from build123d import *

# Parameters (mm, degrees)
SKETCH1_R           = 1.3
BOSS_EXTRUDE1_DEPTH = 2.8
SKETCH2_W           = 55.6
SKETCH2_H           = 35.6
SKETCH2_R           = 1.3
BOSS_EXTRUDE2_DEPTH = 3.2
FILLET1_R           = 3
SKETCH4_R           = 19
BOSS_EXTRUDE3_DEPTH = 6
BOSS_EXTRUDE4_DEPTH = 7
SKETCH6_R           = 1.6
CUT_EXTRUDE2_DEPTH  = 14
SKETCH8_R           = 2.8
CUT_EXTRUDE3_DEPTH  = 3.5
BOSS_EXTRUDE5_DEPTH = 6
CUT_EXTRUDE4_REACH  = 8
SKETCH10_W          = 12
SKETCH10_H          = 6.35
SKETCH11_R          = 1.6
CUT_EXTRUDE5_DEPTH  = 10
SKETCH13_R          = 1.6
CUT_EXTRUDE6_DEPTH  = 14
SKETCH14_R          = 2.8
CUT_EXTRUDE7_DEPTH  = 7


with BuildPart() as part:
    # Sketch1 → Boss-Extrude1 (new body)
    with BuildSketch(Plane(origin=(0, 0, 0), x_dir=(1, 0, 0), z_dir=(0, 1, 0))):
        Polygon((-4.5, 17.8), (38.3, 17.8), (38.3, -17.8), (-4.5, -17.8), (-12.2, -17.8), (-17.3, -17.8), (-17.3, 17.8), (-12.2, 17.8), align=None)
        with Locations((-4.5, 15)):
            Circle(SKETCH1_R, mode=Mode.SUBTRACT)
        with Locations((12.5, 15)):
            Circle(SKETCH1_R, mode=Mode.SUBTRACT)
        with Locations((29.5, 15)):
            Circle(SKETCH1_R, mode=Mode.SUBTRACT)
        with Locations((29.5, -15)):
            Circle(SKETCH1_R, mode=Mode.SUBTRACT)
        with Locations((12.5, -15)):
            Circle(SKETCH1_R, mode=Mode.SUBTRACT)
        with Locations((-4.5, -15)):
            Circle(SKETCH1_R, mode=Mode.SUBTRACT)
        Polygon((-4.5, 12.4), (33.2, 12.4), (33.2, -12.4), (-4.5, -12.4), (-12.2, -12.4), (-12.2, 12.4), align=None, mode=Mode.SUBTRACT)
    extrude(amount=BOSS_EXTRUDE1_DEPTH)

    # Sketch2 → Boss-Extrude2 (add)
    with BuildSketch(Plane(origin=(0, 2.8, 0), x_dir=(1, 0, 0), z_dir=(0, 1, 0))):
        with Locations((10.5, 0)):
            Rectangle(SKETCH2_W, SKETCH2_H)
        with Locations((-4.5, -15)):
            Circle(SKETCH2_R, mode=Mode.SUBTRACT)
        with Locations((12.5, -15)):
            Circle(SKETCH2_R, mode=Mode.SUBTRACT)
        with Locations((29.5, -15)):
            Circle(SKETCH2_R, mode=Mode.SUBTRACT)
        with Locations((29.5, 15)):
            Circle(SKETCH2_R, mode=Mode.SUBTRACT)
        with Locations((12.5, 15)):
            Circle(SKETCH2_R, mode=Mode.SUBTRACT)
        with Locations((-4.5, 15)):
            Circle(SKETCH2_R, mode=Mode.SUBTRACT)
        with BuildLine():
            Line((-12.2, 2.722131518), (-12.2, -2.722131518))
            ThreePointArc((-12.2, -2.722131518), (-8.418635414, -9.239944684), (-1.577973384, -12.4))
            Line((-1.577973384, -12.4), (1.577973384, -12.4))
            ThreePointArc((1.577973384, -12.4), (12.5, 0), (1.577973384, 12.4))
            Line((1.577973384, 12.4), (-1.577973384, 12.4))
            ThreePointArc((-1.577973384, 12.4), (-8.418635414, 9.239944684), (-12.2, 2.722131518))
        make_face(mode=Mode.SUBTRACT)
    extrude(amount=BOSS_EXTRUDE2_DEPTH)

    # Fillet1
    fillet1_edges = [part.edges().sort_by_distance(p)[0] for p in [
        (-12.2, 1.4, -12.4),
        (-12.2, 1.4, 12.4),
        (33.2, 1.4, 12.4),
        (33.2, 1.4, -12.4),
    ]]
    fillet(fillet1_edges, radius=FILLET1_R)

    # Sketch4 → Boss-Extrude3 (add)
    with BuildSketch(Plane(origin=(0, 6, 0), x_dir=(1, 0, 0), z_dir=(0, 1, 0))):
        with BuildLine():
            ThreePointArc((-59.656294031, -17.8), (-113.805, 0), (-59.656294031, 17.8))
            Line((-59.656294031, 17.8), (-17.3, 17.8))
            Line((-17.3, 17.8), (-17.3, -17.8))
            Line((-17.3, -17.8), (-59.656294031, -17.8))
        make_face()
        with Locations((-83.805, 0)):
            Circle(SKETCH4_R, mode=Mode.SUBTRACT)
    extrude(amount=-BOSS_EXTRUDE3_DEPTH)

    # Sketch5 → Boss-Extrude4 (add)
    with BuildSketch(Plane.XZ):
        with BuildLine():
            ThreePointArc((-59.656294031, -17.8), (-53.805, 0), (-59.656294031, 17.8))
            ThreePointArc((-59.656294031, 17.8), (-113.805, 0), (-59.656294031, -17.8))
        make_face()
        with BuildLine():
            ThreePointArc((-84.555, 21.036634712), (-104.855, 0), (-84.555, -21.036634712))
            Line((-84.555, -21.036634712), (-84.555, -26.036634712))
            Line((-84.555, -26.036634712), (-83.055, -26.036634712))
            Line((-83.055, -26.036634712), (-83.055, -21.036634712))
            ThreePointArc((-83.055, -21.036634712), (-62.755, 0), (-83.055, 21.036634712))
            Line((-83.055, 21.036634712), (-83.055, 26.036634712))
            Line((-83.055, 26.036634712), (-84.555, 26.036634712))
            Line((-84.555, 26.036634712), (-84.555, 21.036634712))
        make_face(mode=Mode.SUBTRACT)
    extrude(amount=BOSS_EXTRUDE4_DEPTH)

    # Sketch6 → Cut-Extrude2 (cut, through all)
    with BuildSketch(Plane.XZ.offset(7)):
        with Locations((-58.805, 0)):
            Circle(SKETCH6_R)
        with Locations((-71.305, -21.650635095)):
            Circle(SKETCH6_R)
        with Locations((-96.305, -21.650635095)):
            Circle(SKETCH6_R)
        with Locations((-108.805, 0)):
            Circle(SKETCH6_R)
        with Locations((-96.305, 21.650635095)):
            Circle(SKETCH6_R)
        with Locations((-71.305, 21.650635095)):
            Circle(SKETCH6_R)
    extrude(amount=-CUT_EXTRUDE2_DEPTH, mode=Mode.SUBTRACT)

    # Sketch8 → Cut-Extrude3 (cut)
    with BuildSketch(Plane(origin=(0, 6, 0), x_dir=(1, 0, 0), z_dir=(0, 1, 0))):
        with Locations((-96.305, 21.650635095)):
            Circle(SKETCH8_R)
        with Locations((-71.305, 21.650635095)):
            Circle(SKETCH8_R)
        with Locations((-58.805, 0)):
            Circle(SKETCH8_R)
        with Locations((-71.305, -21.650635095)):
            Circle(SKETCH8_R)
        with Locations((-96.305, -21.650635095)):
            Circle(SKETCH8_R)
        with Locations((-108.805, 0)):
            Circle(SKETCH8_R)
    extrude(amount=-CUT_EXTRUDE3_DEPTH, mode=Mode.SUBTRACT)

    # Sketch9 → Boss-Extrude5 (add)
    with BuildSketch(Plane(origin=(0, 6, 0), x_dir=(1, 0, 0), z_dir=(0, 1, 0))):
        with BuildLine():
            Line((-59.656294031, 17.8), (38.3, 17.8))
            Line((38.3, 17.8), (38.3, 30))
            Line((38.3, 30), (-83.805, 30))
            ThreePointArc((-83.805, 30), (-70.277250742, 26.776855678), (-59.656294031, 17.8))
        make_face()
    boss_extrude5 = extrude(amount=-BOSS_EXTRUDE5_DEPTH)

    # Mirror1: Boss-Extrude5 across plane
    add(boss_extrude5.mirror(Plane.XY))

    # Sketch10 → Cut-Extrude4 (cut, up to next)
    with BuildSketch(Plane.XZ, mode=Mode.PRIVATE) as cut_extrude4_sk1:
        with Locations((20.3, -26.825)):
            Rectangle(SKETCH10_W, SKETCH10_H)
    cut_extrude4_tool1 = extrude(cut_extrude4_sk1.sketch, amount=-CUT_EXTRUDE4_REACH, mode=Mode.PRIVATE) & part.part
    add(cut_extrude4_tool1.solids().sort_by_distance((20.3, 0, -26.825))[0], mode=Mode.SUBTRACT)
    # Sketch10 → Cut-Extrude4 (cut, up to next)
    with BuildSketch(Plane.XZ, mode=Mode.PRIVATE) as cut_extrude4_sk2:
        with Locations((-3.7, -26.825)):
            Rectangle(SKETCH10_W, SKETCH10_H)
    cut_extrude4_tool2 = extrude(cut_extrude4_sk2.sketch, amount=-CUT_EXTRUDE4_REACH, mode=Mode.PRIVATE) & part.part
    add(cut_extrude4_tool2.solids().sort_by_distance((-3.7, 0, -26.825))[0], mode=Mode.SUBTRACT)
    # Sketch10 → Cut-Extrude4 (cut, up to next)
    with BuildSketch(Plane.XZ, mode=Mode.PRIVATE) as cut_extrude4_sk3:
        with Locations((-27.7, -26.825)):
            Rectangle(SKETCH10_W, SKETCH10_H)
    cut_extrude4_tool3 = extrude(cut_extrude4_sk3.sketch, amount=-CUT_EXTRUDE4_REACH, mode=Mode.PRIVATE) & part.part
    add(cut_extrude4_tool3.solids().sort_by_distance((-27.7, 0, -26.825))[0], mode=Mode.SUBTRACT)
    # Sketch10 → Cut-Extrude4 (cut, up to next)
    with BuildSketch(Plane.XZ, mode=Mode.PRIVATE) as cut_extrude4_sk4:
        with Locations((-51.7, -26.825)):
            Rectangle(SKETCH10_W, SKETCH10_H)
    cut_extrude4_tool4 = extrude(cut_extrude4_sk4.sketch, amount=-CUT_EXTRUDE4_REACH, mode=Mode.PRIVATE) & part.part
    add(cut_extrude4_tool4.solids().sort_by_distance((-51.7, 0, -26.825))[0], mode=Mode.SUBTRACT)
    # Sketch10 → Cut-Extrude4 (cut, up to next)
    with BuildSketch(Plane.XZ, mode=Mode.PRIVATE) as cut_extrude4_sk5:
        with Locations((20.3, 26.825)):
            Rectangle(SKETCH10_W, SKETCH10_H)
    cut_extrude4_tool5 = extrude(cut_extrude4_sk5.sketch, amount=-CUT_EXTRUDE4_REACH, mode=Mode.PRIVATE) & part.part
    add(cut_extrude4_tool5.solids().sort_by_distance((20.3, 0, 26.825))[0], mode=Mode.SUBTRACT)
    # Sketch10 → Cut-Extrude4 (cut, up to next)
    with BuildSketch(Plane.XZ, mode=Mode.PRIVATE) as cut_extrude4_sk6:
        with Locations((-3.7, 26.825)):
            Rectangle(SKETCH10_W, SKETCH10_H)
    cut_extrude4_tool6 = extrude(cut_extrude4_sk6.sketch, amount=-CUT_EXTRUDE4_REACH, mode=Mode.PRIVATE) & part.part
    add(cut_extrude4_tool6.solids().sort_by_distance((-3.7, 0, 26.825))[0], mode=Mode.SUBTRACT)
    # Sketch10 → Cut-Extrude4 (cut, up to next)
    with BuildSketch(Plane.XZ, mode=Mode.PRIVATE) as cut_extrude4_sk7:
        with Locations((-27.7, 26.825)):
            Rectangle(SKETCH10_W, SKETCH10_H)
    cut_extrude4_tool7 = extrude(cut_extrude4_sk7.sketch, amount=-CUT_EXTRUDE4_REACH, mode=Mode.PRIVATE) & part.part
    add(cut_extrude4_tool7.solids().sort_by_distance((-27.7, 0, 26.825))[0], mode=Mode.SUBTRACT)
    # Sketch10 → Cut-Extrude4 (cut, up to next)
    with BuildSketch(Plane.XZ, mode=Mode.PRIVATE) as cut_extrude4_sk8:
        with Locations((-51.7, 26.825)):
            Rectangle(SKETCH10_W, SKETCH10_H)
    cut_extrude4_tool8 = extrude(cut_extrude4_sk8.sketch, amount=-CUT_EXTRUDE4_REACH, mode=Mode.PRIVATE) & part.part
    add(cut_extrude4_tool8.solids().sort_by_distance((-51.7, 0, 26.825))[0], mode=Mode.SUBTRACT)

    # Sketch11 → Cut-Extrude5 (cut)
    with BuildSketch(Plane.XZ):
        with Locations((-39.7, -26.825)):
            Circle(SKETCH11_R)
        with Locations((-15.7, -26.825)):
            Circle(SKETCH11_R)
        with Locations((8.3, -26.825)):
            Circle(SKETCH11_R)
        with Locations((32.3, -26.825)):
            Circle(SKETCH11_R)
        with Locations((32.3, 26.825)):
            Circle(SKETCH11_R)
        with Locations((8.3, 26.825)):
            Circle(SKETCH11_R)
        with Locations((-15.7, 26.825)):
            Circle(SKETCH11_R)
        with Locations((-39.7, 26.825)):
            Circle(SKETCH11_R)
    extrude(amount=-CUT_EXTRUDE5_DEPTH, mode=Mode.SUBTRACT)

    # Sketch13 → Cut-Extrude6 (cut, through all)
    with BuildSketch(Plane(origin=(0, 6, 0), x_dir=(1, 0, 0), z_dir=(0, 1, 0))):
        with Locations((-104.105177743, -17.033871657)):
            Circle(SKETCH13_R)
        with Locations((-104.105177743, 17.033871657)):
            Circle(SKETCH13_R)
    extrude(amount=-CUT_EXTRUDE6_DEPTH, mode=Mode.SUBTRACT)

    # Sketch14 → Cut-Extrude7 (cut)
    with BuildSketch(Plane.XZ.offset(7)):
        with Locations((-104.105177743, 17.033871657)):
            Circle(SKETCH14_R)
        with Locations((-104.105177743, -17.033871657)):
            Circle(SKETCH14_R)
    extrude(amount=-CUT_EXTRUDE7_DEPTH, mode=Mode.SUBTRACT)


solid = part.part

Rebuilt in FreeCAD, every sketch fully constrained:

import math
import FreeCAD as App
import Part
import Sketcher

V = App.Vector
Q = App.Units.Quantity


def edges_at(feature, points):
    """Names of the edges that pass closest to the given points."""
    edges = feature.Shape.Edges
    near = lambda p: min(range(len(edges)), key=lambda i: edges[i].distToShape(Part.Vertex(*p))[0])
    return sorted({f"Edge{near(p) + 1}" for p in points})


def add_polygon(sketch, points):
    """Adds a closed chain of lines whose ends are joined by coincident constraints."""
    first, n = sketch.GeometryCount, len(points)
    for a, b in zip(points, points[1:] + points[:1]):
        sketch.addGeometry(Part.LineSegment(App.Vector(*a, 0), App.Vector(*b, 0)), False)
    for i in range(n):
        sketch.addConstraint(Sketcher.Constraint("Coincident", first + i, 2, first + (i + 1) % n, 1))

doc = App.newDocument("Part")
body = doc.addObject("PartDesign::Body", "Body")

# Sketch on XZ plane
sketch1 = body.newObject("Sketcher::SketchObject", "Sketch")
sketch1.AttachmentSupport = (doc.getObject("XZ_Plane"), [""])
sketch1.MapMode = "FlatFace"
add_polygon(sketch1, [(38.3, -17.8), (-17.3, -17.8), (-17.3, 17.8), (38.3, 17.8)])  # lines 0-3
sketch1.addGeometry(Part.Circle(V(29.5, 15, 0), V(0, 0, 1), 1.3), False)  # 4
sketch1.addGeometry(Part.Circle(V(12.5, 15, 0), V(0, 0, 1), 1.3), False)  # 5
sketch1.addGeometry(Part.Circle(V(-4.5, 15, 0), V(0, 0, 1), 1.3), False)  # 6
sketch1.addGeometry(Part.Circle(V(29.5, -15, 0), V(0, 0, 1), 1.3), False)  # 7
sketch1.addGeometry(Part.Circle(V(12.5, -15, 0), V(0, 0, 1), 1.3), False)  # 8
add_polygon(sketch1, [(33.2, -12.4), (33.2, 12.4), (-12.2, 12.4), (-12.2, -12.4)])  # lines 9-12
sketch1.addGeometry(Part.Circle(V(-4.5, -15, 0), V(0, 0, 1), 1.3), False)  # 13
sketch1.addConstraint(Sketcher.Constraint("Horizontal", 0))
sketch1.addConstraint(Sketcher.Constraint("Vertical", 1))
sketch1.addConstraint(Sketcher.Constraint("Horizontal", 2))
sketch1.addConstraint(Sketcher.Constraint("Vertical", 3))
sketch1.addConstraint(Sketcher.Constraint("Vertical", 9))
sketch1.addConstraint(Sketcher.Constraint("Horizontal", 10))
sketch1.addConstraint(Sketcher.Constraint("Vertical", 11))
sketch1.addConstraint(Sketcher.Constraint("Horizontal", 12))
sketch1.addConstraint(Sketcher.Constraint("Equal", 4, 5))
sketch1.addConstraint(Sketcher.Constraint("Equal", 5, 6))
sketch1.addConstraint(Sketcher.Constraint("Equal", 6, 7))
sketch1.addConstraint(Sketcher.Constraint("Equal", 7, 8))
sketch1.addConstraint(Sketcher.Constraint("Equal", 8, 13))
sketch1.addConstraint(Sketcher.Constraint("Symmetric", 4, 3, 7, 3, -1))
sketch1.addConstraint(Sketcher.Constraint("Symmetric", 5, 3, 8, 3, -1))
sketch1.addConstraint(Sketcher.Constraint("Symmetric", 6, 3, 13, 3, -1))
sketch1.addConstraint(Sketcher.Constraint("Horizontal", 4, 3, 5, 3))
sketch1.addConstraint(Sketcher.Constraint("Horizontal", 5, 3, 6, 3))
sketch1.addConstraint(Sketcher.Constraint("Diameter", 4, Q("2.6 mm")))
sketch1.addConstraint(Sketcher.Constraint("DistanceX", 0, 2, 0, 1, Q("55.6 mm")))
sketch1.addConstraint(Sketcher.Constraint("DistanceX", 10, 2, 10, 1, Q("45.4 mm")))
sketch1.addConstraint(Sketcher.Constraint("DistanceY", 1, 1, 1, 2, Q("35.6 mm")))
sketch1.addConstraint(Sketcher.Constraint("DistanceY", 9, 1, 9, 2, Q("24.8 mm")))
sketch1.addConstraint(Sketcher.Constraint("DistanceY", -1, 1, 4, 3, Q("15 mm")))
sketch1.addConstraint(Sketcher.Constraint("DistanceX", 5, 3, 4, 3, Q("17 mm")))
sketch1.addConstraint(Sketcher.Constraint("DistanceX", 6, 3, 5, 3, Q("17 mm")))
sketch1.addConstraint(Sketcher.Constraint("DistanceX", -1, 1, 4, 3, Q("29.5 mm")))
sketch1.addConstraint(Sketcher.Constraint("DistanceX", 0, 2, -1, 1, Q("17.3 mm")))
sketch1.addConstraint(Sketcher.Constraint("DistanceY", 0, 2, -1, 1, Q("17.8 mm")))
sketch1.addConstraint(Sketcher.Constraint("DistanceX", -1, 1, 9, 2, Q("33.2 mm")))
sketch1.addConstraint(Sketcher.Constraint("DistanceY", -1, 1, 9, 2, Q("12.4 mm")))
pad1 = body.newObject("PartDesign::Pad", "Pad")
pad1.Profile = sketch1
pad1.Length = 2.8
pad1.Reversed = True

# Sketch on XZ plane
sketch2 = body.newObject("Sketcher::SketchObject", "Sketch001")
sketch2.AttachmentSupport = (doc.getObject("XZ_Plane"), [""])
sketch2.MapMode = "FlatFace"
sketch2.AttachmentOffset = App.Placement(V(0, 0, -2.8), App.Rotation())
add_polygon(sketch2, [(-17.3, -17.8), (-17.3, 17.8), (38.3, 17.8), (38.3, -17.8)])  # lines 0-3
sketch2.addGeometry(Part.Circle(V(-4.5, 15, 0), V(0, 0, 1), 1.3), False)  # 4
sketch2.addGeometry(Part.Circle(V(12.5, 15, 0), V(0, 0, 1), 1.3), False)  # 5
sketch2.addGeometry(Part.Circle(V(29.5, 15, 0), V(0, 0, 1), 1.3), False)  # 6
sketch2.addGeometry(Part.LineSegment(V(-12.2, 2.7, 0), V(-12.2, -2.7, 0)), False)  # 7
sketch2.addGeometry(Part.ArcOfCircle(Part.Circle(V(0, 0, 0), V(0, 0, 1), 12.5), math.radians(-167), math.radians(-97)), False)  # 8
sketch2.addGeometry(Part.LineSegment(V(-1.6, -12.4, 0), V(1.6, -12.4, 0)), False)  # 9
sketch2.addGeometry(Part.ArcOfCircle(Part.Circle(V(0, 0, 0), V(0, 0, 1), 12.5), math.radians(-83), math.radians(83)), False)  # 10
sketch2.addGeometry(Part.LineSegment(V(1.6, 12.4, 0), V(-1.6, 12.4, 0)), False)  # 11
sketch2.addGeometry(Part.ArcOfCircle(Part.Circle(V(0, 0, 0), V(0, 0, 1), 12.5), math.radians(97), math.radians(167)), False)  # 12
sketch2.addGeometry(Part.Circle(V(-4.5, -15, 0), V(0, 0, 1), 1.3), False)  # 13
sketch2.addGeometry(Part.Circle(V(12.5, -15, 0), V(0, 0, 1), 1.3), False)  # 14
sketch2.addGeometry(Part.Circle(V(29.5, -15, 0), V(0, 0, 1), 1.3), False)  # 15
sketch2.addConstraint(Sketcher.Constraint("Coincident", 7, 2, 8, 1))
sketch2.addConstraint(Sketcher.Constraint("Coincident", 8, 2, 9, 1))
sketch2.addConstraint(Sketcher.Constraint("Coincident", 9, 2, 10, 1))
sketch2.addConstraint(Sketcher.Constraint("Coincident", 10, 2, 11, 1))
sketch2.addConstraint(Sketcher.Constraint("Coincident", 11, 2, 12, 1))
sketch2.addConstraint(Sketcher.Constraint("Coincident", 12, 2, 7, 1))
sketch2.addConstraint(Sketcher.Constraint("Vertical", 0))
sketch2.addConstraint(Sketcher.Constraint("Horizontal", 1))
sketch2.addConstraint(Sketcher.Constraint("Vertical", 2))
sketch2.addConstraint(Sketcher.Constraint("Horizontal", 3))
sketch2.addConstraint(Sketcher.Constraint("Vertical", 7))
sketch2.addConstraint(Sketcher.Constraint("Horizontal", 9))
sketch2.addConstraint(Sketcher.Constraint("Horizontal", 11))
sketch2.addConstraint(Sketcher.Constraint("Coincident", 8, 3, -1, 1))
sketch2.addConstraint(Sketcher.Constraint("Coincident", 10, 3, -1, 1))
sketch2.addConstraint(Sketcher.Constraint("Coincident", 12, 3, -1, 1))
sketch2.addConstraint(Sketcher.Constraint("Equal", 4, 5))
sketch2.addConstraint(Sketcher.Constraint("Equal", 5, 6))
sketch2.addConstraint(Sketcher.Constraint("Equal", 8, 10))
sketch2.addConstraint(Sketcher.Constraint("Equal", 10, 12))
sketch2.addConstraint(Sketcher.Constraint("Equal", 6, 13))
sketch2.addConstraint(Sketcher.Constraint("Equal", 13, 14))
sketch2.addConstraint(Sketcher.Constraint("Equal", 14, 15))
sketch2.addConstraint(Sketcher.Constraint("Symmetric", 4, 3, 13, 3, -1))
sketch2.addConstraint(Sketcher.Constraint("Symmetric", 5, 3, 14, 3, -1))
sketch2.addConstraint(Sketcher.Constraint("Symmetric", 6, 3, 15, 3, -1))
sketch2.addConstraint(Sketcher.Constraint("Horizontal", 4, 3, 5, 3))
sketch2.addConstraint(Sketcher.Constraint("Horizontal", 5, 3, 6, 3))
sketch2.addConstraint(Sketcher.Constraint("Vertical", 9, 2, 10, 2))
sketch2.addConstraint(Sketcher.Constraint("Diameter", 4, Q("2.6 mm")))
sketch2.addConstraint(Sketcher.Constraint("Radius", 8, Q("12.5 mm")))
sketch2.addConstraint(Sketcher.Constraint("DistanceX", 1, 1, 1, 2, Q("55.6 mm")))
sketch2.addConstraint(Sketcher.Constraint("DistanceY", 0, 1, 0, 2, Q("35.6 mm")))
sketch2.addConstraint(Sketcher.Constraint("DistanceY", -1, 1, 4, 3, Q("15 mm")))
sketch2.addConstraint(Sketcher.Constraint("DistanceX", 4, 3, 5, 3, Q("17 mm")))
sketch2.addConstraint(Sketcher.Constraint("DistanceX", 5, 3, 6, 3, Q("17 mm")))
sketch2.addConstraint(Sketcher.Constraint("DistanceX", 4, 3, -1, 1, Q("4.5 mm")))
sketch2.addConstraint(Sketcher.Constraint("DistanceX", 0, 2, -1, 1, Q("17.3 mm")))
sketch2.addConstraint(Sketcher.Constraint("DistanceY", -1, 1, 0, 2, Q("17.8 mm")))
sketch2.addConstraint(Sketcher.Constraint("DistanceX", 7, 2, -1, 1, Q("12.2 mm")))
sketch2.addConstraint(Sketcher.Constraint("DistanceY", 8, 2, -1, 1, Q("12.4 mm")))
pad2 = body.newObject("PartDesign::Pad", "Pad001")
pad2.Profile = sketch2
pad2.Length = 3.2
pad2.Reversed = True
doc.recompute()

fillet = body.newObject("PartDesign::Fillet", "Fillet")
fillet.Base = (pad2, edges_at(pad2, [
    (-12.2, 1.4, -12.4),
    (-12.2, 1.4, 12.4),
    (33.2, 1.4, 12.4),
    (33.2, 1.4, -12.4),
]))
fillet.Radius = 3

# Sketch on XZ plane
sketch3 = body.newObject("Sketcher::SketchObject", "Sketch002")
sketch3.AttachmentSupport = (doc.getObject("XZ_Plane"), [""])
sketch3.MapMode = "FlatFace"
sketch3.AttachmentOffset = App.Placement(V(0, 0, -6), App.Rotation())
sketch3.addGeometry(Part.ArcOfCircle(Part.Circle(V(-84, 0, 0), V(0, 0, 1), 30), math.radians(36), math.radians(324)), False)
sketch3.addGeometry(Part.LineSegment(V(-60, 18, 0), V(-17, 18, 0)), False)
sketch3.addGeometry(Part.LineSegment(V(-17, 18, 0), V(-17, -18, 0)), False)
sketch3.addGeometry(Part.LineSegment(V(-17, -18, 0), V(-60, -18, 0)), False)
sketch3.addGeometry(Part.Circle(V(-84, 0, 0), V(0, 0, 1), 19), False)
sketch3.addConstraint(Sketcher.Constraint("Coincident", 0, 1, 1, 1))
sketch3.addConstraint(Sketcher.Constraint("Coincident", 1, 2, 2, 1))
sketch3.addConstraint(Sketcher.Constraint("Coincident", 2, 2, 3, 1))
sketch3.addConstraint(Sketcher.Constraint("Coincident", 3, 2, 0, 2))
sketch3.addConstraint(Sketcher.Constraint("Horizontal", 1))
sketch3.addConstraint(Sketcher.Constraint("Vertical", 2))
sketch3.addConstraint(Sketcher.Constraint("Horizontal", 3))
sketch3.addConstraint(Sketcher.Constraint("Coincident", 4, 3, 0, 3))
sketch3.addConstraint(Sketcher.Constraint("Symmetric", 0, 1, 3, 2, -1))
sketch3.addConstraint(Sketcher.Constraint("Diameter", 4, Q("38 mm")))
sketch3.addConstraint(Sketcher.Constraint("Radius", 0, Q("30 mm")))
sketch3.addConstraint(Sketcher.Constraint("DistanceY", 2, 2, 2, 1, Q("35.6 mm")))
sketch3.addConstraint(Sketcher.Constraint("DistanceX", 1, 2, -1, 1, Q("17.3 mm")))
sketch3.addConstraint(Sketcher.Constraint("DistanceX", 0, 3, -1, 1, Q("83.805 mm")))
pad3 = body.newObject("PartDesign::Pad", "Pad002")
pad3.Profile = sketch3
pad3.Length = 6

# Sketch on XZ plane
sketch4 = body.newObject("Sketcher::SketchObject", "Sketch003")
sketch4.AttachmentSupport = (doc.getObject("XZ_Plane"), [""])
sketch4.MapMode = "FlatFace"
sketch4.addGeometry(Part.ArcOfCircle(Part.Circle(V(-83.8, 0, 0), V(0, 0, 1), 30), math.radians(-36), math.radians(36)), False)
sketch4.addGeometry(Part.ArcOfCircle(Part.Circle(V(-83.8, 0, 0), V(0, 0, 1), 30), math.radians(36), math.radians(324)), False)
sketch4.addGeometry(Part.ArcOfCircle(Part.Circle(V(-83.8, 0, 0), V(0, 0, 1), 21.1), math.radians(92), math.radians(268)), False)
sketch4.addGeometry(Part.LineSegment(V(-84.6, 21, 0), V(-84.6, 26, 0)), False)
sketch4.addGeometry(Part.LineSegment(V(-84.6, 26, 0), V(-83.1, 26, 0)), False)
sketch4.addGeometry(Part.LineSegment(V(-83.1, 26, 0), V(-83.1, 21, 0)), False)
sketch4.addGeometry(Part.ArcOfCircle(Part.Circle(V(-83.8, 0, 0), V(0, 0, 1), 21.1), math.radians(-88), math.radians(88)), False)
sketch4.addGeometry(Part.LineSegment(V(-83.1, -21, 0), V(-83.1, -26, 0)), False)
sketch4.addGeometry(Part.LineSegment(V(-83.1, -26, 0), V(-84.6, -26, 0)), False)
sketch4.addGeometry(Part.LineSegment(V(-84.6, -26, 0), V(-84.6, -21, 0)), False)
sketch4.addConstraint(Sketcher.Constraint("Tangent", 0, 1, 1, 2))
sketch4.addConstraint(Sketcher.Constraint("Coincident", 1, 1, 0, 2))
sketch4.addConstraint(Sketcher.Constraint("Coincident", 2, 1, 3, 1))
sketch4.addConstraint(Sketcher.Constraint("Coincident", 3, 2, 4, 1))
sketch4.addConstraint(Sketcher.Constraint("Coincident", 4, 2, 5, 1))
sketch4.addConstraint(Sketcher.Constraint("Coincident", 5, 2, 6, 2))
sketch4.addConstraint(Sketcher.Constraint("Coincident", 6, 1, 7, 1))
sketch4.addConstraint(Sketcher.Constraint("Coincident", 7, 2, 8, 1))
sketch4.addConstraint(Sketcher.Constraint("Coincident", 8, 2, 9, 1))
sketch4.addConstraint(Sketcher.Constraint("Coincident", 9, 2, 2, 2))
sketch4.addConstraint(Sketcher.Constraint("Vertical", 3))
sketch4.addConstraint(Sketcher.Constraint("Horizontal", 4))
sketch4.addConstraint(Sketcher.Constraint("Vertical", 5))
sketch4.addConstraint(Sketcher.Constraint("Vertical", 7))
sketch4.addConstraint(Sketcher.Constraint("Horizontal", 8))
sketch4.addConstraint(Sketcher.Constraint("Vertical", 9))
sketch4.addConstraint(Sketcher.Constraint("Coincident", 2, 3, 0, 3))
sketch4.addConstraint(Sketcher.Constraint("Coincident", 6, 3, 0, 3))
sketch4.addConstraint(Sketcher.Constraint("Equal", 2, 6))
sketch4.addConstraint(Sketcher.Constraint("Symmetric", 0, 1, 1, 1, -1))
sketch4.addConstraint(Sketcher.Constraint("Symmetric", 4, 2, 7, 2, -1))
sketch4.addConstraint(Sketcher.Constraint("Horizontal", 2, 1, 5, 2))
sketch4.addConstraint(Sketcher.Constraint("Horizontal", 6, 1, 9, 2))
sketch4.addConstraint(Sketcher.Constraint("Radius", 0, Q("30 mm")))
sketch4.addConstraint(Sketcher.Constraint("DistanceY", 3, 1, 3, 2, Q("5 mm")))
sketch4.addConstraint(Sketcher.Constraint("Radius", 2, Q("21.05 mm")))
sketch4.addConstraint(Sketcher.Constraint("DistanceX", 4, 1, 4, 2, Q("1.5 mm")))
sketch4.addConstraint(Sketcher.Constraint("DistanceY", 0, 1, -1, 1, Q("17.8 mm")))
sketch4.addConstraint(Sketcher.Constraint("DistanceX", 0, 3, -1, 1, Q("83.805 mm")))
pad4 = body.newObject("PartDesign::Pad", "Pad003")
pad4.Profile = sketch4
pad4.Length = 7

# Sketch on XZ plane
sketch5 = body.newObject("Sketcher::SketchObject", "Sketch004")
sketch5.AttachmentSupport = (doc.getObject("XZ_Plane"), [""])
sketch5.MapMode = "FlatFace"
sketch5.AttachmentOffset = App.Placement(V(0, 0, 7), App.Rotation())
sketch5.addGeometry(Part.Circle(V(-58.8, 0, 0), V(0, 0, 1), 1.6), False)
sketch5.addGeometry(Part.Circle(V(-71.3, -21.7, 0), V(0, 0, 1), 1.6), False)
sketch5.addGeometry(Part.Circle(V(-96.3, -21.7, 0), V(0, 0, 1), 1.6), False)
sketch5.addGeometry(Part.Circle(V(-108.8, 0, 0), V(0, 0, 1), 1.6), False)
sketch5.addGeometry(Part.Circle(V(-96.3, 21.7, 0), V(0, 0, 1), 1.6), False)
sketch5.addGeometry(Part.Circle(V(-71.3, 21.7, 0), V(0, 0, 1), 1.6), False)
sketch5.addConstraint(Sketcher.Constraint("Equal", 0, 1))
sketch5.addConstraint(Sketcher.Constraint("Equal", 1, 2))
sketch5.addConstraint(Sketcher.Constraint("Equal", 2, 3))
sketch5.addConstraint(Sketcher.Constraint("Equal", 3, 4))
sketch5.addConstraint(Sketcher.Constraint("Equal", 4, 5))
sketch5.addConstraint(Sketcher.Constraint("Symmetric", 2, 3, 4, 3, -1))
sketch5.addConstraint(Sketcher.Constraint("Symmetric", 1, 3, 5, 3, -1))
sketch5.addConstraint(Sketcher.Constraint("PointOnObject", 0, 3, -1))
sketch5.addConstraint(Sketcher.Constraint("PointOnObject", 3, 3, -1))
sketch5.addConstraint(Sketcher.Constraint("Horizontal", 1, 3, 2, 3))
sketch5.addConstraint(Sketcher.Constraint("Diameter", 0, Q("3.2 mm")))
sketch5.addConstraint(Sketcher.Constraint("DistanceX", 2, 3, 1, 3, Q("25 mm")))
sketch5.addConstraint(Sketcher.Constraint("DistanceX", 3, 3, 0, 3, Q("50 mm")))
sketch5.addConstraint(Sketcher.Constraint("DistanceX", 1, 3, 0, 3, Q("12.5 mm")))
sketch5.addConstraint(Sketcher.Constraint("DistanceX", 0, 3, -1, 1, Q("58.805 mm")))
sketch5.addConstraint(Sketcher.Constraint("DistanceY", 2, 3, 4, 3, Q("43.30127 mm")))
pocket1 = body.newObject("PartDesign::Pocket", "Pocket")
pocket1.Profile = sketch5
pocket1.Type = "ThroughAll"

# Sketch on XZ plane
sketch6 = body.newObject("Sketcher::SketchObject", "Sketch005")
sketch6.AttachmentSupport = (doc.getObject("XZ_Plane"), [""])
sketch6.MapMode = "FlatFace"
sketch6.AttachmentOffset = App.Placement(V(0, 0, -6), App.Rotation())
sketch6.addGeometry(Part.Circle(V(-96.3, -21.7, 0), V(0, 0, 1), 2.8), False)
sketch6.addGeometry(Part.Circle(V(-71.3, -21.7, 0), V(0, 0, 1), 2.8), False)
sketch6.addGeometry(Part.Circle(V(-58.8, 0, 0), V(0, 0, 1), 2.8), False)
sketch6.addGeometry(Part.Circle(V(-71.3, 21.7, 0), V(0, 0, 1), 2.8), False)
sketch6.addGeometry(Part.Circle(V(-96.3, 21.7, 0), V(0, 0, 1), 2.8), False)
sketch6.addGeometry(Part.Circle(V(-108.8, 0, 0), V(0, 0, 1), 2.8), False)
sketch6.addConstraint(Sketcher.Constraint("Equal", 0, 1))
sketch6.addConstraint(Sketcher.Constraint("Equal", 1, 2))
sketch6.addConstraint(Sketcher.Constraint("Equal", 2, 3))
sketch6.addConstraint(Sketcher.Constraint("Equal", 3, 4))
sketch6.addConstraint(Sketcher.Constraint("Equal", 4, 5))
sketch6.addConstraint(Sketcher.Constraint("Symmetric", 1, 3, 3, 3, -1))
sketch6.addConstraint(Sketcher.Constraint("Symmetric", 0, 3, 4, 3, -1))
sketch6.addConstraint(Sketcher.Constraint("PointOnObject", 2, 3, -1))
sketch6.addConstraint(Sketcher.Constraint("PointOnObject", 5, 3, -1))
sketch6.addConstraint(Sketcher.Constraint("Horizontal", 0, 3, 1, 3))
sketch6.addConstraint(Sketcher.Constraint("Diameter", 0, Q("5.6 mm")))
sketch6.addConstraint(Sketcher.Constraint("DistanceX", 0, 3, 1, 3, Q("25 mm")))
sketch6.addConstraint(Sketcher.Constraint("DistanceX", 5, 3, 2, 3, Q("50 mm")))
sketch6.addConstraint(Sketcher.Constraint("DistanceX", 1, 3, 2, 3, Q("12.5 mm")))
sketch6.addConstraint(Sketcher.Constraint("DistanceX", 0, 3, -1, 1, Q("96.305 mm")))
sketch6.addConstraint(Sketcher.Constraint("DistanceY", 1, 3, 3, 3, Q("43.30127 mm")))
pocket2 = body.newObject("PartDesign::Pocket", "Pocket001")
pocket2.Profile = sketch6
pocket2.Length = 3.5
pocket2.Reversed = True

# Sketch on XZ plane
sketch7 = body.newObject("Sketcher::SketchObject", "Sketch006")
sketch7.AttachmentSupport = (doc.getObject("XZ_Plane"), [""])
sketch7.MapMode = "FlatFace"
sketch7.AttachmentOffset = App.Placement(V(0, 0, -6), App.Rotation())
sketch7.addGeometry(Part.LineSegment(V(-60, -18, 0), V(38, -18, 0)), False)
sketch7.addGeometry(Part.LineSegment(V(38, -18, 0), V(38, -30, 0)), False)
sketch7.addGeometry(Part.LineSegment(V(38, -30, 0), V(-84, -30, 0)), False)
sketch7.addGeometry(Part.ArcOfCircle(Part.Circle(V(-84, 0, 0), V(0, 0, 1), 30), math.radians(-90), math.radians(-36)), False)
sketch7.addConstraint(Sketcher.Constraint("Coincident", 0, 2, 1, 1))
sketch7.addConstraint(Sketcher.Constraint("Coincident", 1, 2, 2, 1))
sketch7.addConstraint(Sketcher.Constraint("Tangent", 2, 2, 3, 1))
sketch7.addConstraint(Sketcher.Constraint("Coincident", 3, 2, 0, 1))
sketch7.addConstraint(Sketcher.Constraint("Horizontal", 0))
sketch7.addConstraint(Sketcher.Constraint("Vertical", 1))
sketch7.addConstraint(Sketcher.Constraint("Horizontal", 2))
sketch7.addConstraint(Sketcher.Constraint("PointOnObject", 3, 3, -1))
sketch7.addConstraint(Sketcher.Constraint("Radius", 3, Q("30 mm")))
sketch7.addConstraint(Sketcher.Constraint("DistanceY", 1, 2, 1, 1, Q("12.2 mm")))
sketch7.addConstraint(Sketcher.Constraint("DistanceX", -1, 1, 0, 2, Q("38.3 mm")))
sketch7.addConstraint(Sketcher.Constraint("DistanceX", 2, 2, 2, 1, Q("122.105 mm")))
pad5 = body.newObject("PartDesign::Pad", "Pad004")
pad5.Profile = sketch7
pad5.Length = 6
doc.recompute()

mirrored = body.newObject("PartDesign::Mirrored", "Mirrored")
mirrored.Originals = [pad5]
mirrored.MirrorPlane = (doc.getObject("XY_Plane"), [""])
body.Tip = mirrored

# Sketch on XZ plane
sketch8 = body.newObject("Sketcher::SketchObject", "Sketch007")
sketch8.AttachmentSupport = (doc.getObject("XZ_Plane"), [""])
sketch8.MapMode = "FlatFace"
add_polygon(sketch8, [(14, -24), (14, -30), (26, -30), (26, -24)])  # lines 0-3
sketch8.addConstraint(Sketcher.Constraint("Vertical", 0))
sketch8.addConstraint(Sketcher.Constraint("Horizontal", 1))
sketch8.addConstraint(Sketcher.Constraint("Vertical", 2))
sketch8.addConstraint(Sketcher.Constraint("Horizontal", 3))
sketch8.addConstraint(Sketcher.Constraint("DistanceX", 1, 1, 1, 2, Q("12 mm")))
sketch8.addConstraint(Sketcher.Constraint("DistanceY", 0, 2, -1, 1, Q("30 mm")))
sketch8.addConstraint(Sketcher.Constraint("DistanceY", 0, 2, 0, 1, Q("6.35 mm")))
sketch8.addConstraint(Sketcher.Constraint("DistanceX", -1, 1, 0, 2, Q("14.3 mm")))
pocket3 = body.newObject("PartDesign::Pocket", "Pocket002")
pocket3.Profile = sketch8
pocket3.Type = "UpToFirst"

# Sketch on XZ plane
sketch9 = body.newObject("Sketcher::SketchObject", "Sketch008")
sketch9.AttachmentSupport = (doc.getObject("XZ_Plane"), [""])
sketch9.MapMode = "FlatFace"
add_polygon(sketch9, [(-10, -24), (-10, -30), (2, -30), (2, -24)])  # lines 0-3
sketch9.addConstraint(Sketcher.Constraint("Vertical", 0))
sketch9.addConstraint(Sketcher.Constraint("Horizontal", 1))
sketch9.addConstraint(Sketcher.Constraint("Vertical", 2))
sketch9.addConstraint(Sketcher.Constraint("Horizontal", 3))
sketch9.addConstraint(Sketcher.Constraint("DistanceX", 1, 1, 1, 2, Q("12 mm")))
sketch9.addConstraint(Sketcher.Constraint("DistanceY", 0, 2, -1, 1, Q("30 mm")))
sketch9.addConstraint(Sketcher.Constraint("DistanceY", 0, 2, 0, 1, Q("6.35 mm")))
sketch9.addConstraint(Sketcher.Constraint("DistanceX", 0, 2, -1, 1, Q("9.7 mm")))
pocket4 = body.newObject("PartDesign::Pocket", "Pocket003")
pocket4.Profile = sketch9
pocket4.Type = "UpToFirst"

# Sketch on XZ plane
sketch10 = body.newObject("Sketcher::SketchObject", "Sketch009")
sketch10.AttachmentSupport = (doc.getObject("XZ_Plane"), [""])
sketch10.MapMode = "FlatFace"
add_polygon(sketch10, [(-34, -24), (-34, -30), (-22, -30), (-22, -24)])  # lines 0-3
sketch10.addConstraint(Sketcher.Constraint("Vertical", 0))
sketch10.addConstraint(Sketcher.Constraint("Horizontal", 1))
sketch10.addConstraint(Sketcher.Constraint("Vertical", 2))
sketch10.addConstraint(Sketcher.Constraint("Horizontal", 3))
sketch10.addConstraint(Sketcher.Constraint("DistanceX", 1, 1, 1, 2, Q("12 mm")))
sketch10.addConstraint(Sketcher.Constraint("DistanceY", 0, 2, -1, 1, Q("30 mm")))
sketch10.addConstraint(Sketcher.Constraint("DistanceY", 0, 2, 0, 1, Q("6.35 mm")))
sketch10.addConstraint(Sketcher.Constraint("DistanceX", 0, 2, -1, 1, Q("33.7 mm")))
pocket5 = body.newObject("PartDesign::Pocket", "Pocket004")
pocket5.Profile = sketch10
pocket5.Type = "UpToFirst"

# Sketch on XZ plane
sketch11 = body.newObject("Sketcher::SketchObject", "Sketch010")
sketch11.AttachmentSupport = (doc.getObject("XZ_Plane"), [""])
sketch11.MapMode = "FlatFace"
add_polygon(sketch11, [(-58, -24), (-58, -30), (-46, -30), (-46, -24)])  # lines 0-3
sketch11.addConstraint(Sketcher.Constraint("Vertical", 0))
sketch11.addConstraint(Sketcher.Constraint("Horizontal", 1))
sketch11.addConstraint(Sketcher.Constraint("Vertical", 2))
sketch11.addConstraint(Sketcher.Constraint("Horizontal", 3))
sketch11.addConstraint(Sketcher.Constraint("DistanceX", 1, 1, 1, 2, Q("12 mm")))
sketch11.addConstraint(Sketcher.Constraint("DistanceY", 0, 2, -1, 1, Q("30 mm")))
sketch11.addConstraint(Sketcher.Constraint("DistanceY", 0, 2, 0, 1, Q("6.35 mm")))
sketch11.addConstraint(Sketcher.Constraint("DistanceX", 0, 2, -1, 1, Q("57.7 mm")))
pocket6 = body.newObject("PartDesign::Pocket", "Pocket005")
pocket6.Profile = sketch11
pocket6.Type = "UpToFirst"

# Sketch on XZ plane
sketch12 = body.newObject("Sketcher::SketchObject", "Sketch011")
sketch12.AttachmentSupport = (doc.getObject("XZ_Plane"), [""])
sketch12.MapMode = "FlatFace"
add_polygon(sketch12, [(14, 30), (14, 24), (26, 24), (26, 30)])  # lines 0-3
sketch12.addConstraint(Sketcher.Constraint("Vertical", 0))
sketch12.addConstraint(Sketcher.Constraint("Horizontal", 1))
sketch12.addConstraint(Sketcher.Constraint("Vertical", 2))
sketch12.addConstraint(Sketcher.Constraint("Horizontal", 3))
sketch12.addConstraint(Sketcher.Constraint("DistanceX", 1, 1, 1, 2, Q("12 mm")))
sketch12.addConstraint(Sketcher.Constraint("DistanceY", -1, 1, 2, 2, Q("30 mm")))
sketch12.addConstraint(Sketcher.Constraint("DistanceY", 0, 2, 0, 1, Q("6.35 mm")))
sketch12.addConstraint(Sketcher.Constraint("DistanceX", -1, 1, 0, 2, Q("14.3 mm")))
pocket7 = body.newObject("PartDesign::Pocket", "Pocket006")
pocket7.Profile = sketch12
pocket7.Type = "UpToFirst"

# Sketch on XZ plane
sketch13 = body.newObject("Sketcher::SketchObject", "Sketch012")
sketch13.AttachmentSupport = (doc.getObject("XZ_Plane"), [""])
sketch13.MapMode = "FlatFace"
add_polygon(sketch13, [(-10, 30), (-10, 24), (2, 24), (2, 30)])  # lines 0-3
sketch13.addConstraint(Sketcher.Constraint("Vertical", 0))
sketch13.addConstraint(Sketcher.Constraint("Horizontal", 1))
sketch13.addConstraint(Sketcher.Constraint("Vertical", 2))
sketch13.addConstraint(Sketcher.Constraint("Horizontal", 3))
sketch13.addConstraint(Sketcher.Constraint("DistanceX", 1, 1, 1, 2, Q("12 mm")))
sketch13.addConstraint(Sketcher.Constraint("DistanceY", -1, 1, 2, 2, Q("30 mm")))
sketch13.addConstraint(Sketcher.Constraint("DistanceY", 0, 2, 0, 1, Q("6.35 mm")))
sketch13.addConstraint(Sketcher.Constraint("DistanceX", 0, 2, -1, 1, Q("9.7 mm")))
pocket8 = body.newObject("PartDesign::Pocket", "Pocket007")
pocket8.Profile = sketch13
pocket8.Type = "UpToFirst"

# Sketch on XZ plane
sketch14 = body.newObject("Sketcher::SketchObject", "Sketch013")
sketch14.AttachmentSupport = (doc.getObject("XZ_Plane"), [""])
sketch14.MapMode = "FlatFace"
add_polygon(sketch14, [(-34, 30), (-34, 24), (-22, 24), (-22, 30)])  # lines 0-3
sketch14.addConstraint(Sketcher.Constraint("Vertical", 0))
sketch14.addConstraint(Sketcher.Constraint("Horizontal", 1))
sketch14.addConstraint(Sketcher.Constraint("Vertical", 2))
sketch14.addConstraint(Sketcher.Constraint("Horizontal", 3))
sketch14.addConstraint(Sketcher.Constraint("DistanceX", 1, 1, 1, 2, Q("12 mm")))
sketch14.addConstraint(Sketcher.Constraint("DistanceY", -1, 1, 2, 2, Q("30 mm")))
sketch14.addConstraint(Sketcher.Constraint("DistanceY", 0, 2, 0, 1, Q("6.35 mm")))
sketch14.addConstraint(Sketcher.Constraint("DistanceX", 0, 2, -1, 1, Q("33.7 mm")))
pocket9 = body.newObject("PartDesign::Pocket", "Pocket008")
pocket9.Profile = sketch14
pocket9.Type = "UpToFirst"

# Sketch on XZ plane
sketch15 = body.newObject("Sketcher::SketchObject", "Sketch014")
sketch15.AttachmentSupport = (doc.getObject("XZ_Plane"), [""])
sketch15.MapMode = "FlatFace"
add_polygon(sketch15, [(-58, 30), (-58, 24), (-46, 24), (-46, 30)])  # lines 0-3
sketch15.addConstraint(Sketcher.Constraint("Vertical", 0))
sketch15.addConstraint(Sketcher.Constraint("Horizontal", 1))
sketch15.addConstraint(Sketcher.Constraint("Vertical", 2))
sketch15.addConstraint(Sketcher.Constraint("Horizontal", 3))
sketch15.addConstraint(Sketcher.Constraint("DistanceX", 1, 1, 1, 2, Q("12 mm")))
sketch15.addConstraint(Sketcher.Constraint("DistanceY", -1, 1, 2, 2, Q("30 mm")))
sketch15.addConstraint(Sketcher.Constraint("DistanceY", 0, 2, 0, 1, Q("6.35 mm")))
sketch15.addConstraint(Sketcher.Constraint("DistanceX", 0, 2, -1, 1, Q("57.7 mm")))
pocket10 = body.newObject("PartDesign::Pocket", "Pocket009")
pocket10.Profile = sketch15
pocket10.Type = "UpToFirst"

# Sketch on XZ plane
sketch16 = body.newObject("Sketcher::SketchObject", "Sketch015")
sketch16.AttachmentSupport = (doc.getObject("XZ_Plane"), [""])
sketch16.MapMode = "FlatFace"
sketch16.addGeometry(Part.Circle(V(-39.7, -26.8, 0), V(0, 0, 1), 1.6), False)
sketch16.addGeometry(Part.Circle(V(-15.7, -26.8, 0), V(0, 0, 1), 1.6), False)
sketch16.addGeometry(Part.Circle(V(8.3, -26.8, 0), V(0, 0, 1), 1.6), False)
sketch16.addGeometry(Part.Circle(V(32.3, -26.8, 0), V(0, 0, 1), 1.6), False)
sketch16.addGeometry(Part.Circle(V(32.3, 26.8, 0), V(0, 0, 1), 1.6), False)
sketch16.addGeometry(Part.Circle(V(8.3, 26.8, 0), V(0, 0, 1), 1.6), False)
sketch16.addGeometry(Part.Circle(V(-15.7, 26.8, 0), V(0, 0, 1), 1.6), False)
sketch16.addGeometry(Part.Circle(V(-39.7, 26.8, 0), V(0, 0, 1), 1.6), False)
sketch16.addConstraint(Sketcher.Constraint("Equal", 0, 1))
sketch16.addConstraint(Sketcher.Constraint("Equal", 1, 2))
sketch16.addConstraint(Sketcher.Constraint("Equal", 2, 3))
sketch16.addConstraint(Sketcher.Constraint("Equal", 3, 4))
sketch16.addConstraint(Sketcher.Constraint("Equal", 4, 5))
sketch16.addConstraint(Sketcher.Constraint("Equal", 5, 6))
sketch16.addConstraint(Sketcher.Constraint("Equal", 6, 7))
sketch16.addConstraint(Sketcher.Constraint("Symmetric", 3, 3, 4, 3, -1))
sketch16.addConstraint(Sketcher.Constraint("Symmetric", 2, 3, 5, 3, -1))
sketch16.addConstraint(Sketcher.Constraint("Symmetric", 1, 3, 6, 3, -1))
sketch16.addConstraint(Sketcher.Constraint("Symmetric", 0, 3, 7, 3, -1))
sketch16.addConstraint(Sketcher.Constraint("Horizontal", 0, 3, 1, 3))
sketch16.addConstraint(Sketcher.Constraint("Horizontal", 1, 3, 2, 3))
sketch16.addConstraint(Sketcher.Constraint("Horizontal", 2, 3, 3, 3))
sketch16.addConstraint(Sketcher.Constraint("Diameter", 0, Q("3.2 mm")))
sketch16.addConstraint(Sketcher.Constraint("DistanceX", 0, 3, 1, 3, Q("24 mm")))
sketch16.addConstraint(Sketcher.Constraint("DistanceX", 1, 3, 2, 3, Q("24 mm")))
sketch16.addConstraint(Sketcher.Constraint("DistanceX", 2, 3, 3, 3, Q("24 mm")))
sketch16.addConstraint(Sketcher.Constraint("DistanceX", 0, 3, -1, 1, Q("39.7 mm")))
sketch16.addConstraint(Sketcher.Constraint("DistanceY", 3, 3, 4, 3, Q("53.65 mm")))
pocket11 = body.newObject("PartDesign::Pocket", "Pocket010")
pocket11.Profile = sketch16
pocket11.Length = 10

# Sketch on XZ plane
sketch17 = body.newObject("Sketcher::SketchObject", "Sketch016")
sketch17.AttachmentSupport = (doc.getObject("XZ_Plane"), [""])
sketch17.MapMode = "FlatFace"
sketch17.AttachmentOffset = App.Placement(V(0, 0, -6), App.Rotation())
sketch17.addGeometry(Part.Circle(V(-104.1, 17, 0), V(0, 0, 1), 1.6), False)
sketch17.addGeometry(Part.Circle(V(-104.1, -17, 0), V(0, 0, 1), 1.6), False)
sketch17.addConstraint(Sketcher.Constraint("Equal", 0, 1))
sketch17.addConstraint(Sketcher.Constraint("Symmetric", 0, 3, 1, 3, -1))
sketch17.addConstraint(Sketcher.Constraint("Diameter", 0, Q("3.2 mm")))
sketch17.addConstraint(Sketcher.Constraint("DistanceY", -1, 1, 0, 3, Q("17.033872 mm")))
sketch17.addConstraint(Sketcher.Constraint("DistanceX", 0, 3, -1, 1, Q("104.105178 mm")))
pocket12 = body.newObject("PartDesign::Pocket", "Pocket011")
pocket12.Profile = sketch17
pocket12.Type = "ThroughAll"
pocket12.Reversed = True

# Sketch on XZ plane
sketch18 = body.newObject("Sketcher::SketchObject", "Sketch017")
sketch18.AttachmentSupport = (doc.getObject("XZ_Plane"), [""])
sketch18.MapMode = "FlatFace"
sketch18.AttachmentOffset = App.Placement(V(0, 0, 7), App.Rotation())
sketch18.addGeometry(Part.Circle(V(-104.1, 17, 0), V(0, 0, 1), 2.8), False)
sketch18.addGeometry(Part.Circle(V(-104.1, -17, 0), V(0, 0, 1), 2.8), False)
sketch18.addConstraint(Sketcher.Constraint("Equal", 0, 1))
sketch18.addConstraint(Sketcher.Constraint("Symmetric", 0, 3, 1, 3, -1))
sketch18.addConstraint(Sketcher.Constraint("Diameter", 0, Q("5.6 mm")))
sketch18.addConstraint(Sketcher.Constraint("DistanceY", -1, 1, 0, 3, Q("17.033872 mm")))
sketch18.addConstraint(Sketcher.Constraint("DistanceX", 0, 3, -1, 1, Q("104.105178 mm")))
pocket13 = body.newObject("PartDesign::Pocket", "Pocket012")
pocket13.Profile = sketch18
pocket13.Length = 7

doc.recompute()
